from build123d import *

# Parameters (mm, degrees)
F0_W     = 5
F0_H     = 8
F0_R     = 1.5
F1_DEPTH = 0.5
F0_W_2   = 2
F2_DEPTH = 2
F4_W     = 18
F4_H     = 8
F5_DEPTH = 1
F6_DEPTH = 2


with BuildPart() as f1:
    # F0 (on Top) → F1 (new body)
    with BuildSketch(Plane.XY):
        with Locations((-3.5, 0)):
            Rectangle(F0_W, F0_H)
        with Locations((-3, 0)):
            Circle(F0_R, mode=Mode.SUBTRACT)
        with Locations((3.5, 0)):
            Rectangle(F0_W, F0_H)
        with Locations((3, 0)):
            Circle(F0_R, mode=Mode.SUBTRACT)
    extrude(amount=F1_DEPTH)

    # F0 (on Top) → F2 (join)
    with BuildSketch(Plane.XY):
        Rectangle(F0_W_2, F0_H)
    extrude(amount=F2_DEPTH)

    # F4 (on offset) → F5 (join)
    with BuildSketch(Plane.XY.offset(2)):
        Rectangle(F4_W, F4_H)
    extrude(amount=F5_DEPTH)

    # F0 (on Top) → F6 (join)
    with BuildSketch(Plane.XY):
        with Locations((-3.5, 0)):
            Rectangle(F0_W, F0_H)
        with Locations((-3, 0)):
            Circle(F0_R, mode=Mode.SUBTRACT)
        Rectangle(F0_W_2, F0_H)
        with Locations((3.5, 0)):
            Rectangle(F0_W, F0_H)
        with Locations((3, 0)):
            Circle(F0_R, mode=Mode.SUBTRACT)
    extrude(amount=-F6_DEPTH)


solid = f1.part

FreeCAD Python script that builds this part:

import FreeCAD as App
import Part
import Sketcher
from FreeCAD import Vector


def add_polygon(sketch, points):
    """Adds a closed chain of lines whose ends are joined by coincident constraints."""
    first, n = sketch.GeometryCount, len(points)
    for a, b in zip(points, points[1:] + points[:1]):
        sketch.addGeometry(Part.LineSegment(App.Vector(*a, 0), App.Vector(*b, 0)), False)
    for i in range(n):
        sketch.addConstraint(Sketcher.Constraint("Coincident", first + i, 2, first + (i + 1) % n, 1))

doc = App.newDocument("Part")
body = doc.addObject("PartDesign::Body", "Body")
body.AllowCompound = True

# Sketch on XY plane
sketch1 = body.newObject("Sketcher::SketchObject", "Sketch")
sketch1.AttachmentSupport = (doc.getObject("XY_Plane"), [""])
sketch1.MapMode = "FlatFace"
add_polygon(sketch1, [(-6, 4), (-6, -4), (-1, -4), (-1, 4)])  # lines 0-3
sketch1.addGeometry(Part.Circle(Vector(-3, 0, 0), Vector(0, 0, 1), 1.5), False)  # 4
add_polygon(sketch1, [(1, 4), (1, -4), (6, -4), (6, 4)])  # lines 5-8
sketch1.addGeometry(Part.Circle(Vector(3, 0, 0), Vector(0, 0, 1), 1.5), False)  # 9
sketch1.addConstraint([
    Sketcher.Constraint("Vertical", 0),
    Sketcher.Constraint("Horizontal", 1),
    Sketcher.Constraint("Vertical", 2),
    Sketcher.Constraint("Horizontal", 3),
    Sketcher.Constraint("Vertical", 5),
    Sketcher.Constraint("Horizontal", 6),
    Sketcher.Constraint("Vertical", 7),
    Sketcher.Constraint("Horizontal", 8),
    Sketcher.Constraint("Equal", 4, 9),
    Sketcher.Constraint("Symmetric", 4, 3, 9, 3, -1, 1),
    Sketcher.Constraint("Symmetric", 2, 2, 5, 2, -1, 1),
    Sketcher.Constraint("Symmetric", 0, 2, 7, 2, -1, 1),
    Sketcher.Constraint("PointOnObject", 4, 3, -1),
    Sketcher.Constraint("Horizontal", 1, 2, 5, 2),
    Sketcher.Constraint("Diameter", 4, 3.0),
    Sketcher.Constraint("DistanceX", 1, 1, 1, 2, 5.0),
    Sketcher.Constraint("DistanceY", 0, 2, 0, 1, 8.0),
    Sketcher.Constraint("DistanceX", 4, 3, -1, 1, 3.0),
    Sketcher.Constraint("DistanceX", 0, 2, -1, 1, 6.0),
])
pad1 = body.newObject("PartDesign::Pad", "Pad")
pad1.Profile = sketch1
pad1.Length = 0.5

# Sketch on XY plane
sketch2 = body.newObject("Sketcher::SketchObject", "Sketch001")
sketch2.AttachmentSupport = (doc.getObject("XY_Plane"), [""])
sketch2.MapMode = "FlatFace"
add_polygon(sketch2, [(-1, 4), (-1, -4), (1, -4), (1, 4)])  # lines 0-3
sketch2.addConstraint([
    Sketcher.Constraint("Vertical", 0),
    Sketcher.Constraint("Horizontal", 1),
    Sketcher.Constraint("Vertical", 2),
    Sketcher.Constraint("Horizontal", 3),
    Sketcher.Constraint("Symmetric", 0, 2, 2, 2, -1, 1),
    Sketcher.Constraint("DistanceX", 1, 1, 1, 2, 2.0),
    Sketcher.Constraint("DistanceY", 0, 2, 0, 1, 8.0),
])
pad2 = body.newObject("PartDesign::Pad", "Pad001")
pad2.Profile = sketch2
pad2.Length = 2

# Sketch on XY plane
sketch3 = body.newObject("Sketcher::SketchObject", "Sketch002")
sketch3.AttachmentSupport = (doc.getObject("XY_Plane"), [""])
sketch3.MapMode = "FlatFace"
sketch3.AttachmentOffset = App.Placement(Vector(0, 0, 2), App.Rotation())
add_polygon(sketch3, [(-9, 4), (-9, -4), (9, -4), (9, 4)])  # lines 0-3
sketch3.addConstraint([
    Sketcher.Constraint("Vertical", 0),
    Sketcher.Constraint("Horizontal", 1),
    Sketcher.Constraint("Vertical", 2),
    Sketcher.Constraint("Horizontal", 3),
    Sketcher.Constraint("Symmetric", 0, 2, 2, 2, -1, 1),
    Sketcher.Constraint("DistanceX", 1, 1, 1, 2, 18.0),
    Sketcher.Constraint("DistanceY", 0, 2, 0, 1, 8.0),
])
pad3 = body.newObject("PartDesign::Pad", "Pad002")
pad3.Profile = sketch3
pad3.Length = 1

# Sketch on XY plane
sketch4 = body.newObject("Sketcher::SketchObject", "Sketch003")
sketch4.AttachmentSupport = (doc.getObject("XY_Plane"), [""])
sketch4.MapMode = "FlatFace"
add_polygon(sketch4, [(-6, 4), (-6, -4), (6, -4), (6, 4)])  # lines 0-3
sketch4.addGeometry(Part.Circle(Vector(-3, 0, 0), Vector(0, 0, 1), 1.5), False)  # 4
sketch4.addGeometry(Part.Circle(Vector(3, 0, 0), Vector(0, 0, 1), 1.5), False)  # 5
sketch4.addConstraint([
    Sketcher.Constraint("Vertical", 0),
    Sketcher.Constraint("Horizontal", 1),
    Sketcher.Constraint("Vertical", 2),
    Sketcher.Constraint("Horizontal", 3),
    Sketcher.Constraint("Equal", 4, 5),
    Sketcher.Constraint("Symmetric", 4, 3, 5, 3, -1, 1),
    Sketcher.Constraint("Symmetric", 0, 2, 2, 2, -1, 1),
    Sketcher.Constraint("PointOnObject", 4, 3, -1),
    Sketcher.Constraint("Diameter", 4, 3.0),
    Sketcher.Constraint("DistanceX", 1, 1, 1, 2, 12.0),
    Sketcher.Constraint("DistanceY", 0, 2, 0, 1, 8.0),
    Sketcher.Constraint("DistanceX", 4, 3, -1, 1, 3.0),
])
pad4 = body.newObject("PartDesign::Pad", "Pad003")
pad4.Profile = sketch4
pad4.Length = 2
pad4.Reversed = True

doc.recompute()
